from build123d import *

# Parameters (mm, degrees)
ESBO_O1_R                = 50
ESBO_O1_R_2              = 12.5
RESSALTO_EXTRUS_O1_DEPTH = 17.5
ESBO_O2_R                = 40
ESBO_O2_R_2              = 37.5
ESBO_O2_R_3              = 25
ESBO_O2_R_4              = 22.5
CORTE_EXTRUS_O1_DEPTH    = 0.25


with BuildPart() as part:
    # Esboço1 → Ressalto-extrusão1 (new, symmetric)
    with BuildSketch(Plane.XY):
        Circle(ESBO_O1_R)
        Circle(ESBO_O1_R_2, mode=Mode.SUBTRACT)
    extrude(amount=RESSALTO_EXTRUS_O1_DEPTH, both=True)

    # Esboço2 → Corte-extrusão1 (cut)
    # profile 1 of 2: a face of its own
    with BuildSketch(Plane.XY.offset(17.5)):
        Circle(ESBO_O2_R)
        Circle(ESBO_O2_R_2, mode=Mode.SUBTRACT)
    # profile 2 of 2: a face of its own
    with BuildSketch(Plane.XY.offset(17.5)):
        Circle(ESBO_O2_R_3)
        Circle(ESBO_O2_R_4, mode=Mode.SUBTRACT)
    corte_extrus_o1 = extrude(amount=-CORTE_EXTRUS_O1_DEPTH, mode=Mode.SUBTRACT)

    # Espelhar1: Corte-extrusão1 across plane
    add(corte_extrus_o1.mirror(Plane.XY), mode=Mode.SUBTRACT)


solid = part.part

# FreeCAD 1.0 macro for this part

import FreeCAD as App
import Part
import Sketcher
from FreeCAD import Vector

doc = App.newDocument("Part")
body = doc.addObject("PartDesign::Body", "Body")

# Sketch on XY plane
sketch1 = doc.addObject("Sketcher::SketchObject", "Sketch")
body.addObject(sketch1)
sketch1.AttachmentSupport = (doc.XY_Plane, [""])
sketch1.MapMode = "FlatFace"
sketch1.addGeometry([
    Part.Circle(Vector(0, 0, 0), Vector(0, 0, 1), 50),
    Part.Circle(Vector(0, 0, 0), Vector(0, 0, 1), 12),
], False)
sketch1.addConstraint([
    Sketcher.Constraint("Coincident", 0, 3, -1, 1),
    Sketcher.Constraint("Coincident", 1, 3, -1, 1),
    Sketcher.Constraint("Diameter", 0, 100.0),
    Sketcher.Constraint("Diameter", 1, 25.0),
])
pad1 = doc.addObject("PartDesign::Pad", "Pad")
body.addObject(pad1)
pad1.Profile = sketch1
pad1.Length = 35
pad1.Midplane = True

# Sketch on XY plane
sketch2 = doc.addObject("Sketcher::SketchObject", "Sketch001")
body.addObject(sketch2)
sketch2.AttachmentSupport = (doc.XY_Plane, [""])
sketch2.MapMode = "FlatFace"
sketch2.AttachmentOffset = App.Placement(Vector(0, 0, 17.5), App.Rotation())
sketch2.addGeometry([
    Part.Circle(Vector(0, 0, 0), Vector(0, 0, 1), 40),
    Part.Circle(Vector(0, 0, 0), Vector(0, 0, 1), 38),
    Part.Circle(Vector(0, 0, 0), Vector(0, 0, 1), 25),
    Part.Circle(Vector(0, 0, 0), Vector(0, 0, 1), 22),
], False)
sketch2.addConstraint([
    Sketcher.Constraint("Coincident", 0, 3, -1, 1),
    Sketcher.Constraint("Coincident", 1, 3, -1, 1),
    Sketcher.Constraint("Coincident", 2, 3, -1, 1),
    Sketcher.Constraint("Coincident", 3, 3, -1, 1),
    Sketcher.Constraint("Diameter", 0, 80.0),
    Sketcher.Constraint("Diameter", 1, 75.0),
    Sketcher.Constraint("Diameter", 2, 50.0),
    Sketcher.Constraint("Diameter", 3, 45.0),
])
pocket1 = doc.addObject("PartDesign::Pocket", "Pocket")
body.addObject(pocket1)
pocket1.Profile = sketch2
pocket1.Length = 0.25
doc.recompute()

mirrored = doc.addObject("PartDesign::Mirrored", "Mirrored")
body.addObject(mirrored)
mirrored.Originals = [pocket1]
mirrored.MirrorPlane = (doc.XY_Plane, [""])
body.Tip = mirrored

doc.recompute()
